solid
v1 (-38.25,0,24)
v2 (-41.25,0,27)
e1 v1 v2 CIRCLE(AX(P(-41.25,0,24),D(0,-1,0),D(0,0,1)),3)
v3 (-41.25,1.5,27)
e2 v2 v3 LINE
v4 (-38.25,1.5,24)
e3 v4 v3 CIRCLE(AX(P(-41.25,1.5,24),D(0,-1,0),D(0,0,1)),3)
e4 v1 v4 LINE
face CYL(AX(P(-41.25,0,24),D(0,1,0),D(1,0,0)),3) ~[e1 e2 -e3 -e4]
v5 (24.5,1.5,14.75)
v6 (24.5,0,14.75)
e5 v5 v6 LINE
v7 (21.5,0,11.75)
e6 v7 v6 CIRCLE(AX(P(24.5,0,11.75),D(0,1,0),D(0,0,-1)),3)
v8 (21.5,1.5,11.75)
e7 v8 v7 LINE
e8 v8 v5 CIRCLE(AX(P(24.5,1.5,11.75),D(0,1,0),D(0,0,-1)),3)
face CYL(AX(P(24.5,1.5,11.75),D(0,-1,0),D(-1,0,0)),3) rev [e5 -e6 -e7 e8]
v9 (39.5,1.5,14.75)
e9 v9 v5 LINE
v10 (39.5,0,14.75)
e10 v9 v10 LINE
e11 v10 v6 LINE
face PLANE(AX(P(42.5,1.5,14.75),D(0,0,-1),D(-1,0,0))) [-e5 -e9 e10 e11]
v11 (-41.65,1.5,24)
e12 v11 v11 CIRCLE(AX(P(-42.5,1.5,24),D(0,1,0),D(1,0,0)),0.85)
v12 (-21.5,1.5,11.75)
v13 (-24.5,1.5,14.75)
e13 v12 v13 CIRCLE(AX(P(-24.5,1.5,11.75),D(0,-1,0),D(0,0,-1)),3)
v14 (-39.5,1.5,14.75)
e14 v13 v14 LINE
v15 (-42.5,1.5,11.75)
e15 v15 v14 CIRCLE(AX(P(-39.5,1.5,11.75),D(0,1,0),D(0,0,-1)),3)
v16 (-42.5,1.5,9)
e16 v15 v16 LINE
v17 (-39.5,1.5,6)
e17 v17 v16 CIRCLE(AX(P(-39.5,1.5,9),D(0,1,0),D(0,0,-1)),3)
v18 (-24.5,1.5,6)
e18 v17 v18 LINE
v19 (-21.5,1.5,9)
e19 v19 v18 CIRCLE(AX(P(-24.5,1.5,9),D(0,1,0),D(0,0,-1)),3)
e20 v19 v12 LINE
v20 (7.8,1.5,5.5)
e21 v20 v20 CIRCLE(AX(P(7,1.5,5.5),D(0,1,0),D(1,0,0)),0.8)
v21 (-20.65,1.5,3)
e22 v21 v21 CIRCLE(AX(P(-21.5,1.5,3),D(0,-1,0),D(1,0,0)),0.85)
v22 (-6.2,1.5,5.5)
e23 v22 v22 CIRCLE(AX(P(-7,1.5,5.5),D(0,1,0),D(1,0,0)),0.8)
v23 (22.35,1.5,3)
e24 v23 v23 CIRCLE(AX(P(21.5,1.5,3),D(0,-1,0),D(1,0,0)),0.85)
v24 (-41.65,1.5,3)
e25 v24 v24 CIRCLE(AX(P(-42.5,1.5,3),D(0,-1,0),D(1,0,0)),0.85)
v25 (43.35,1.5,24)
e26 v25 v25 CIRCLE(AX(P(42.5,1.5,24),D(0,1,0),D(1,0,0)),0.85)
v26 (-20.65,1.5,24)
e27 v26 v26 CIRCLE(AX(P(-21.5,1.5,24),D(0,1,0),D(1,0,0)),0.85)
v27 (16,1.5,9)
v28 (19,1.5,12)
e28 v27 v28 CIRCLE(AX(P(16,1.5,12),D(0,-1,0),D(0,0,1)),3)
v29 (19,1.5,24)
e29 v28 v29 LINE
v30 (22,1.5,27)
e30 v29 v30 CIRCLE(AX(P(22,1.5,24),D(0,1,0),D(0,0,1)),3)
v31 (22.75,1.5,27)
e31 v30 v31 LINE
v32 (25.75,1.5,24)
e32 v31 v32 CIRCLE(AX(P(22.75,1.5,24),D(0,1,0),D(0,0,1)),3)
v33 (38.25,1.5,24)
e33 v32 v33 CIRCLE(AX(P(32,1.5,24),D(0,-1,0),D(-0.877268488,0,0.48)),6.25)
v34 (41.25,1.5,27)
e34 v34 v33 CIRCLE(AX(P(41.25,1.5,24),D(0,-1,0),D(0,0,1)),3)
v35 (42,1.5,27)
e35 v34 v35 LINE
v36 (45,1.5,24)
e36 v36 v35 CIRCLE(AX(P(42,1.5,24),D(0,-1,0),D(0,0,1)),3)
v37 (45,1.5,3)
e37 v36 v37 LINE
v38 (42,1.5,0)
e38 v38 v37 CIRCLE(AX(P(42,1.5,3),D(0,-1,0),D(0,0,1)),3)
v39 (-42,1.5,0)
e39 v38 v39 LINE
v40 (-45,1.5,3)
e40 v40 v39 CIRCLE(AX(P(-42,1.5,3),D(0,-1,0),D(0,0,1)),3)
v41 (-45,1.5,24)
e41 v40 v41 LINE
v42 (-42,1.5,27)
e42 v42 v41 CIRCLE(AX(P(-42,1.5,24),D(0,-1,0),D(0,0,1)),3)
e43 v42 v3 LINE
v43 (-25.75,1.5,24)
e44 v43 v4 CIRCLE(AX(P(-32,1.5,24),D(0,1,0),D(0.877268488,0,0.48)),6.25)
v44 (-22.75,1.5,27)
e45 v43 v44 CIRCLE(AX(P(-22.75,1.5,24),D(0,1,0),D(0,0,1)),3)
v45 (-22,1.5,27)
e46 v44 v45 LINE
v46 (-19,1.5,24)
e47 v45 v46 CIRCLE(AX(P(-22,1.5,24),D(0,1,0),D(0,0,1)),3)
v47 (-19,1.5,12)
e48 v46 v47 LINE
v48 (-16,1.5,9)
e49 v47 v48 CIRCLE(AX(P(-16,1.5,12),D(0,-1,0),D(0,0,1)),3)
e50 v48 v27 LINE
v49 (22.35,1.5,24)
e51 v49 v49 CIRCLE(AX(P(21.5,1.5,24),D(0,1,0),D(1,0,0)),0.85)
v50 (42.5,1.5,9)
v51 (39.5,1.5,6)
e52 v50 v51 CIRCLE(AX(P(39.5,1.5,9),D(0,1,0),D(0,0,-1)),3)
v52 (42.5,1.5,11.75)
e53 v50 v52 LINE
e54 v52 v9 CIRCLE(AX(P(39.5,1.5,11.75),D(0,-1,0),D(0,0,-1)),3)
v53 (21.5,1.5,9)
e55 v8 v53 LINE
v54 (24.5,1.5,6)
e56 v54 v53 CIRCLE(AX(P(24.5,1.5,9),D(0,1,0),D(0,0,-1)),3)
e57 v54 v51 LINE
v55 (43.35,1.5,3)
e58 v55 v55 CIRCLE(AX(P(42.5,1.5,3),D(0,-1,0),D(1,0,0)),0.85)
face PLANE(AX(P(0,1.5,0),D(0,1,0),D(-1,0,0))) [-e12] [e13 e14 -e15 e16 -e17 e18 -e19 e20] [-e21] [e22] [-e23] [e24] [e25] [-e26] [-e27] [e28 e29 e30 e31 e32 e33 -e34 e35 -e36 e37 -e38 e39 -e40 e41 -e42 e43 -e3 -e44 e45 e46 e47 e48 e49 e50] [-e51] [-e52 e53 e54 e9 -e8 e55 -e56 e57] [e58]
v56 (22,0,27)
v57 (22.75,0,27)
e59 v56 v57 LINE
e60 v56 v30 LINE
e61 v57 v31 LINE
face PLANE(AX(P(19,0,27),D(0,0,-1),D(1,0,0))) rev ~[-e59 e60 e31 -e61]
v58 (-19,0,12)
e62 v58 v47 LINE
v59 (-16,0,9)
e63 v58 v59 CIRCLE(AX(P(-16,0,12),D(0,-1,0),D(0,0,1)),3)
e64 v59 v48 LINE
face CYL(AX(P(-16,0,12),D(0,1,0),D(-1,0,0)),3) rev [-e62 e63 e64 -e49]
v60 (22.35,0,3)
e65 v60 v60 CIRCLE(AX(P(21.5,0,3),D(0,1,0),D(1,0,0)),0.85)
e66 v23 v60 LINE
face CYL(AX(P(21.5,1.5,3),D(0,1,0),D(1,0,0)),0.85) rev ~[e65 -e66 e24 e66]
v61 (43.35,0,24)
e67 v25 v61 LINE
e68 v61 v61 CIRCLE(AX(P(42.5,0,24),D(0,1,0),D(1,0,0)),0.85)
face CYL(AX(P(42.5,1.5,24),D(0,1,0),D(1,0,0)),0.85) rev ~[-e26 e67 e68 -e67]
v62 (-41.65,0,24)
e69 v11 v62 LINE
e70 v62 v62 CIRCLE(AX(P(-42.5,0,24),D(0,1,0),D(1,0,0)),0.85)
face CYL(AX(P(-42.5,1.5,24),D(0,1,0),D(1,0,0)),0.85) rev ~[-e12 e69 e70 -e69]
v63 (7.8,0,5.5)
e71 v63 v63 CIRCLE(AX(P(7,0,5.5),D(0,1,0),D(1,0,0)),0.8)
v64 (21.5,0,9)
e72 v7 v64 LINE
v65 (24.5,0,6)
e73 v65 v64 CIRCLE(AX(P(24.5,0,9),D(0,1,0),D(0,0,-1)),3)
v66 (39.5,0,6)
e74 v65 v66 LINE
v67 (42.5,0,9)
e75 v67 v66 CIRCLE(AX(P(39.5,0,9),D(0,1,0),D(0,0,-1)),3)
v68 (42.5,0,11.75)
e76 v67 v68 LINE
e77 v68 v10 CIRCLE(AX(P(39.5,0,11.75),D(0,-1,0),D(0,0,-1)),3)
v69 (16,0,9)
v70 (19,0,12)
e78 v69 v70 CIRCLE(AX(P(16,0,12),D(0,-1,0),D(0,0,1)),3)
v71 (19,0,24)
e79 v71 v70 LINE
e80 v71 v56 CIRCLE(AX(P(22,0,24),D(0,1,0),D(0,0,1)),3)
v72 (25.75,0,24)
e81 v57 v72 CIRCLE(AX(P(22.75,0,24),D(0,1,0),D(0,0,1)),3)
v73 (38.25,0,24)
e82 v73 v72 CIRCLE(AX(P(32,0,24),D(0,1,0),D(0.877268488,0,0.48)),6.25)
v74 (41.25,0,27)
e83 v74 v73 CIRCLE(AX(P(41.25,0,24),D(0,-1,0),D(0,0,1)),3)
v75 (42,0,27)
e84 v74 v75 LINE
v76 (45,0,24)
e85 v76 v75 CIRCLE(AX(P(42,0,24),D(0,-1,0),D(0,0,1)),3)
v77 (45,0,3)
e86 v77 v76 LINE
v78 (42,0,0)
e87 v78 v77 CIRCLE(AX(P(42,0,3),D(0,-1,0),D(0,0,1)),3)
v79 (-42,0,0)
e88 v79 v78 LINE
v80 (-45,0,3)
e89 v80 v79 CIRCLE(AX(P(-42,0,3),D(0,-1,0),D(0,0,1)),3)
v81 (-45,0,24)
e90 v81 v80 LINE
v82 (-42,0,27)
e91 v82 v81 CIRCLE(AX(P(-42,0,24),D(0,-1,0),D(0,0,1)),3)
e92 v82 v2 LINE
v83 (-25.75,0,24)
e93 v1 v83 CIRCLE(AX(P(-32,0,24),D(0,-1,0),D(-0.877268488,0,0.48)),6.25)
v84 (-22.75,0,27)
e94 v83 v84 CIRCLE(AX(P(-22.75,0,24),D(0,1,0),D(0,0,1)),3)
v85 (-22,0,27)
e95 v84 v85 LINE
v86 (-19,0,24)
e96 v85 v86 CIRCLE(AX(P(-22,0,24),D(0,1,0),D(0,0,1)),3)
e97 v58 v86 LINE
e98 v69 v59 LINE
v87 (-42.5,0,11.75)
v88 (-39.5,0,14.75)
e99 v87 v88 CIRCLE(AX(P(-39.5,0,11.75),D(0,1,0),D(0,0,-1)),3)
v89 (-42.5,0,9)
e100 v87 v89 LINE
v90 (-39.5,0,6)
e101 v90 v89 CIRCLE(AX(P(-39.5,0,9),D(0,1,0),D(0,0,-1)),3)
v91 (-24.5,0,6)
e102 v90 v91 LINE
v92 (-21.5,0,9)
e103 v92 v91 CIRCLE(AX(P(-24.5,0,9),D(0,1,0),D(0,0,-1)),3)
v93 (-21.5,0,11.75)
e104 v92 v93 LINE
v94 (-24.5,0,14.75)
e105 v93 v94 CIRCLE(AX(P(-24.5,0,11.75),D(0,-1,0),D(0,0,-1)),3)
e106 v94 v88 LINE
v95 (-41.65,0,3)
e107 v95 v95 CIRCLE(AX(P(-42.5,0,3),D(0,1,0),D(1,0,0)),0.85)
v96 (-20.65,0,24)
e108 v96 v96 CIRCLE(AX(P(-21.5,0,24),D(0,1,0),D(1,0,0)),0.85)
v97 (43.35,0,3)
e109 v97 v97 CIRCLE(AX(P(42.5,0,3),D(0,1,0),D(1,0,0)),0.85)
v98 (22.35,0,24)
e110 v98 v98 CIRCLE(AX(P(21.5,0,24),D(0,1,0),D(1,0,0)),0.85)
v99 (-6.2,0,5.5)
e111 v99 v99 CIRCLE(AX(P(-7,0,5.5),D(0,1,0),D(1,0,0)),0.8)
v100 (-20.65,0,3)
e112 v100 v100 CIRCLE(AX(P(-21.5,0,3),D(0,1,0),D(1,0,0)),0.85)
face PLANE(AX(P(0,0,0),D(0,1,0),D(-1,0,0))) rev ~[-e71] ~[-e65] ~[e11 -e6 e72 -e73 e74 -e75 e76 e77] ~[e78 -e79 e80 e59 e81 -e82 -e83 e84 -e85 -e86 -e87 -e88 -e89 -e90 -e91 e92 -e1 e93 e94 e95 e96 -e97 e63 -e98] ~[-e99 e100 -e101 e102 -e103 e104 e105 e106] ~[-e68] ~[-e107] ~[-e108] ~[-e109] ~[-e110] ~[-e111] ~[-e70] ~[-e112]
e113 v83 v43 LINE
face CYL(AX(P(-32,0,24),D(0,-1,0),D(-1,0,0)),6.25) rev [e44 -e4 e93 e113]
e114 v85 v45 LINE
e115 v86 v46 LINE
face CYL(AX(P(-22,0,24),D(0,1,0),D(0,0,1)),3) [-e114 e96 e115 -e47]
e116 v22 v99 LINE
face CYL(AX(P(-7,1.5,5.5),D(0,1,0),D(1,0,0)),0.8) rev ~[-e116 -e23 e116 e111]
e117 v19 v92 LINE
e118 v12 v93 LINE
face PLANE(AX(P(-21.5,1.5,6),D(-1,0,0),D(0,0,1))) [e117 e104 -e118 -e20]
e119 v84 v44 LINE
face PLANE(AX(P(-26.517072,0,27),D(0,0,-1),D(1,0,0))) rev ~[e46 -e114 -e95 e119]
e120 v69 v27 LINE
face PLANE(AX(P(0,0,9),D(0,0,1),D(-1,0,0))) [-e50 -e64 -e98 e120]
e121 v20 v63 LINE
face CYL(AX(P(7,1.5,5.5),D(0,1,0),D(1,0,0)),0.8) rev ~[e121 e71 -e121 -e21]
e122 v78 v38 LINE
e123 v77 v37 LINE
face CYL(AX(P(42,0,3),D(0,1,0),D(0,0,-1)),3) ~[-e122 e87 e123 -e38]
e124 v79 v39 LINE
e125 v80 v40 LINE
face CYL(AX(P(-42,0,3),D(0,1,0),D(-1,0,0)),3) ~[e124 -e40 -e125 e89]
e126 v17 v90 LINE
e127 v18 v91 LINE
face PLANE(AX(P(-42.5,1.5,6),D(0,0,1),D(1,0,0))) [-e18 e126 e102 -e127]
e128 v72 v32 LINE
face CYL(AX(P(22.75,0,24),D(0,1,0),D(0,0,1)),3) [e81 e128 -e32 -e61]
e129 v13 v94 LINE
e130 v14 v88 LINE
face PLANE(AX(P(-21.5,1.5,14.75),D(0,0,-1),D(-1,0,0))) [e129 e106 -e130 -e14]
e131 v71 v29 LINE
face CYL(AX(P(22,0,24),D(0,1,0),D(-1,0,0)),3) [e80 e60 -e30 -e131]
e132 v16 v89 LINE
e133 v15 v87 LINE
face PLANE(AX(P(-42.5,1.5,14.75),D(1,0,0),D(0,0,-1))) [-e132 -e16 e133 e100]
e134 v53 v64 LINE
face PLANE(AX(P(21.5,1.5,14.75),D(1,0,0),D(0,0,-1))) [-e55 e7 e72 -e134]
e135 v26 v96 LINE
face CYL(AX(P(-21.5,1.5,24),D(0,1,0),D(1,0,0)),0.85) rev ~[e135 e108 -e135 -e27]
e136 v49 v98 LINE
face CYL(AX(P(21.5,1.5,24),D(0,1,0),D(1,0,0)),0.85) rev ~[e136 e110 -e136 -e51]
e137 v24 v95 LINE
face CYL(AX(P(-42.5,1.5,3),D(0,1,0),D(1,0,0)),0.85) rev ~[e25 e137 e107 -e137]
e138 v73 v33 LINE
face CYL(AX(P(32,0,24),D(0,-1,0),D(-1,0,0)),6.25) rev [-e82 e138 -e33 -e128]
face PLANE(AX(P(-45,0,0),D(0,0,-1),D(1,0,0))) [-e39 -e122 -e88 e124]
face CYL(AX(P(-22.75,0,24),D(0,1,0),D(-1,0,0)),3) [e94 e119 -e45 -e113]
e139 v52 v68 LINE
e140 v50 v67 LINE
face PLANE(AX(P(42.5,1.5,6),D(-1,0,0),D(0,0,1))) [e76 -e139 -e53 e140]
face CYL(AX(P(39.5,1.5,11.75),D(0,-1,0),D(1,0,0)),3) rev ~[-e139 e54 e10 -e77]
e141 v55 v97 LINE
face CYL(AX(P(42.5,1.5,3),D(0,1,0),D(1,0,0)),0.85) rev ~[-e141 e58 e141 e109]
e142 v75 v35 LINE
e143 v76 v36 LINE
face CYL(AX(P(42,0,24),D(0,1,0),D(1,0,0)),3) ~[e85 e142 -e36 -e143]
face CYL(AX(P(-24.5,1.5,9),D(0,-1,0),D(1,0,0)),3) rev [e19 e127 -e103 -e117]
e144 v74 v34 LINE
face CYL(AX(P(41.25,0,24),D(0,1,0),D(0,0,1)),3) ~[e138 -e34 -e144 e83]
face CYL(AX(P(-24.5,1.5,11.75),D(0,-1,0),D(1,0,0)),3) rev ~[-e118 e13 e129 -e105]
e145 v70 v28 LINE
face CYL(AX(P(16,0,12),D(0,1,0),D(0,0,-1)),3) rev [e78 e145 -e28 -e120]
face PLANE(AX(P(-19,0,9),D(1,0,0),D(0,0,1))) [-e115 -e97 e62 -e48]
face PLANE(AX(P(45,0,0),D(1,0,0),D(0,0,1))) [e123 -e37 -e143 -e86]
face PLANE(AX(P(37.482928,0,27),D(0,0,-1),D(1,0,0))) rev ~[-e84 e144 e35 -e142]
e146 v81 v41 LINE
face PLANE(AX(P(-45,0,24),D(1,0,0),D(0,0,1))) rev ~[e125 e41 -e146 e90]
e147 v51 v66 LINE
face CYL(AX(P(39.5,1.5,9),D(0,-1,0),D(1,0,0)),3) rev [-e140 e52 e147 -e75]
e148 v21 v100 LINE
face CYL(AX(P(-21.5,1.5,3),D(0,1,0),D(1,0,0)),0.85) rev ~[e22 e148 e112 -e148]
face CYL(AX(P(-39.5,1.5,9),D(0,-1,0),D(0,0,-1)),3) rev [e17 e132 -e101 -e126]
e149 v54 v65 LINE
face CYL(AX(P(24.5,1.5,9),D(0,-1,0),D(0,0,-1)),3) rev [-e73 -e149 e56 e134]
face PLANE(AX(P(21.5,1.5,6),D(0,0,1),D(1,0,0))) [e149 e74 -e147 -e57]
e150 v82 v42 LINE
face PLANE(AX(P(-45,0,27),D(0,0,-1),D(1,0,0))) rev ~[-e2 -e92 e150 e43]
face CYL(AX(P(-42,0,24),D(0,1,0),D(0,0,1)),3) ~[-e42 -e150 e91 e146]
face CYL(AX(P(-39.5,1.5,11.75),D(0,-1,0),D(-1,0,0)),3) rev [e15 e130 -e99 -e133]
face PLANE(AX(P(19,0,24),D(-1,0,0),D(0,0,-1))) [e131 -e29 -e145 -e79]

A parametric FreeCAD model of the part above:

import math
import FreeCAD as App
import Part
import Sketcher


def edges_at(feature, points):
    """Names of the edges that pass closest to the given points."""
    edges = feature.Shape.Edges
    near = lambda p: min(range(len(edges)), key=lambda i: edges[i].distToShape(Part.Vertex(*p))[0])
    return sorted({f"Edge{near(p) + 1}" for p in points})

doc = App.newDocument("Part")
params = doc.addObject("Spreadsheet::Sheet", "Params")
for row, (alias, value) in enumerate([
    ("sketch1_radius", "6.25 mm"),
    ("sketch1_height", "3 mm"),
    ("pad1_length", "1.5 mm"),
    ("sketch2_diameter", "1.7 mm"),
    ("sketch2_diameter2", "1.6 mm"),
    ("sketch2_width", "21 mm"),
    ("sketch2_height", "8.75 mm"),
    ("pocket1_length", "1.5 mm"),
    ("fillet_radius", "3 mm"),
], start=1):
    params.set(f"A{row}", alias)
    params.set(f"B{row}", "=" + value)
    params.setAlias(f"B{row}", alias)

body = doc.addObject("PartDesign::Body", "Body")

# Sketch on XZ plane
sketch1 = body.newObject("Sketcher::SketchObject", "Sketch")
sketch1.AttachmentSupport = (doc.getObject("XZ_Plane"), [""])
sketch1.MapMode = "FlatFace"
sketch1.addGeometry([
    Part.ArcOfCircle(Part.Circle(App.Vector(-32, 24, 0), App.Vector(0, 0, 1), 6), math.radians(151), math.radians(389)),  # 0
    Part.LineSegment(App.Vector(-27, 27, 0), App.Vector(-19, 27, 0)),  # 1
    Part.LineSegment(App.Vector(-19, 27, 0), App.Vector(-19, 9, 0)),  # 2
    Part.LineSegment(App.Vector(-19, 9, 0), App.Vector(19, 9, 0)),  # 3
    Part.LineSegment(App.Vector(19, 9, 0), App.Vector(19, 27, 0)),  # 4
    Part.LineSegment(App.Vector(19, 27, 0), App.Vector(27, 27, 0)),  # 5
    Part.ArcOfCircle(Part.Circle(App.Vector(32, 24, 0), App.Vector(0, 0, 1), 6), math.radians(151), math.radians(389)),  # 6
    Part.LineSegment(App.Vector(37, 27, 0), App.Vector(45, 27, 0)),  # 7
    Part.LineSegment(App.Vector(45, 27, 0), App.Vector(45, 0, 0)),  # 8
    Part.LineSegment(App.Vector(45, 0, 0), App.Vector(-45, 0, 0)),  # 9
    Part.LineSegment(App.Vector(-45, 0, 0), App.Vector(-45, 27, 0)),  # 10
    Part.LineSegment(App.Vector(-45, 27, 0), App.Vector(-37, 27, 0)),  # 11
], False)
sketch1.addConstraint([
    Sketcher.Constraint("Coincident", 0, 2, 1, 1),
    Sketcher.Constraint("Coincident", 1, 2, 2, 1),
    Sketcher.Constraint("Coincident", 2, 2, 3, 1),
    Sketcher.Constraint("Coincident", 3, 2, 4, 1),
    Sketcher.Constraint("Coincident", 4, 2, 5, 1),
    Sketcher.Constraint("Coincident", 5, 2, 6, 1),
    Sketcher.Constraint("Coincident", 6, 2, 7, 1),
    Sketcher.Constraint("Coincident", 7, 2, 8, 1),
    Sketcher.Constraint("Coincident", 8, 2, 9, 1),
    Sketcher.Constraint("Coincident", 9, 2, 10, 1),
    Sketcher.Constraint("Coincident", 10, 2, 11, 1),
    Sketcher.Constraint("Coincident", 11, 2, 0, 1),
    Sketcher.Constraint("Horizontal", 1),
    Sketcher.Constraint("Vertical", 2),
    Sketcher.Constraint("Horizontal", 3),
    Sketcher.Constraint("Vertical", 4),
    Sketcher.Constraint("Horizontal", 5),
    Sketcher.Constraint("Horizontal", 7),
    Sketcher.Constraint("Vertical", 8),
    Sketcher.Constraint("Horizontal", 9),
    Sketcher.Constraint("Vertical", 10),
    Sketcher.Constraint("Horizontal", 11),
    Sketcher.Constraint("Equal", 0, 6),
    Sketcher.Constraint("Symmetric", 8, 2, 9, 2, -1, 1),
    Sketcher.Constraint("Symmetric", 0, 3, 6, 3, -2),
    Sketcher.Constraint("Symmetric", 1, 2, 4, 2, -2),
    Sketcher.Constraint("Horizontal", 5, 2, 6, 2),
    Sketcher.Constraint("Horizontal", 7, 2, 10, 2),
    Sketcher.Constraint("Equal", 5, 7),
    Sketcher.Constraint("Radius", 0, 6.25),
    Sketcher.Constraint("DistanceY", -1, 1, 0, 3, 24.0),
    Sketcher.Constraint("DistanceY", -1, 1, 2, 2, 9.0),
    Sketcher.Constraint("DistanceX", 0, 3, 6, 3, 64.0),
    Sketcher.Constraint("DistanceY", 0, 3, 0, 2, 3.0),
    Sketcher.Constraint("DistanceX", 4, 2, 7, 2, 26.0),
])
sketch1.setExpression("Constraints[29]", "Params.sketch1_radius")
sketch1.setExpression("Constraints[33]", "Params.sketch1_height")
pad1 = body.newObject("PartDesign::Pad", "Pad")
pad1.Profile = sketch1
pad1.setExpression("Length", "Params.pad1_length")
pad1.Reversed = True

# Sketch on XZ plane
sketch2 = body.newObject("Sketcher::SketchObject", "Sketch001")
sketch2.AttachmentSupport = (doc.getObject("XZ_Plane"), [""])
sketch2.MapMode = "FlatFace"
sketch2.AttachmentOffset = App.Placement(App.Vector(0, 0, -1.5), App.Rotation())
sketch2.addGeometry([
    Part.LineSegment(App.Vector(21.5, 14.8, 0), App.Vector(42.5, 14.8, 0)),  # 0
    Part.LineSegment(App.Vector(42.5, 14.8, 0), App.Vector(42.5, 6, 0)),  # 1
    Part.LineSegment(App.Vector(42.5, 6, 0), App.Vector(21.5, 6, 0)),  # 2
    Part.LineSegment(App.Vector(21.5, 6, 0), App.Vector(21.5, 14.8, 0)),  # 3
    Part.LineSegment(App.Vector(-42.5, 14.8, 0), App.Vector(-21.5, 14.8, 0)),  # 4
    Part.LineSegment(App.Vector(-21.5, 14.8, 0), App.Vector(-21.5, 6, 0)),  # 5
    Part.LineSegment(App.Vector(-21.5, 6, 0), App.Vector(-42.5, 6, 0)),  # 6
    Part.LineSegment(App.Vector(-42.5, 6, 0), App.Vector(-42.5, 14.8, 0)),  # 7
    Part.Circle(App.Vector(42.5, 3, 0), App.Vector(0, 0, 1), 0.8),  # 8
    Part.Circle(App.Vector(21.5, 3, 0), App.Vector(0, 0, 1), 0.8),  # 9
    Part.Circle(App.Vector(-21.5, 3, 0), App.Vector(0, 0, 1), 0.8),  # 10
    Part.Circle(App.Vector(-42.5, 3, 0), App.Vector(0, 0, 1), 0.8),  # 11
    Part.Circle(App.Vector(-42.5, 24, 0), App.Vector(0, 0, 1), 0.8),  # 12
    Part.Circle(App.Vector(-21.5, 24, 0), App.Vector(0, 0, 1), 0.8),  # 13
    Part.Circle(App.Vector(21.5, 24, 0), App.Vector(0, 0, 1), 0.8),  # 14
    Part.Circle(App.Vector(42.5, 24, 0), App.Vector(0, 0, 1), 0.8),  # 15
    Part.Circle(App.Vector(7, 5.5, 0), App.Vector(0, 0, 1), 0.8),  # 16
    Part.Circle(App.Vector(-7, 5.5, 0), App.Vector(0, 0, 1), 0.8),  # 17
], False)
sketch2.addConstraint([
    Sketcher.Constraint("Coincident", 0, 2, 1, 1),
    Sketcher.Constraint("Coincident", 1, 2, 2, 1),
    Sketcher.Constraint("Coincident", 2, 2, 3, 1),
    Sketcher.Constraint("Coincident", 3, 2, 0, 1),
    Sketcher.Constraint("Coincident", 4, 2, 5, 1),
    Sketcher.Constraint("Coincident", 5, 2, 6, 1),
    Sketcher.Constraint("Coincident", 6, 2, 7, 1),
    Sketcher.Constraint("Coincident", 7, 2, 4, 1),
    Sketcher.Constraint("Horizontal", 0),
    Sketcher.Constraint("Vertical", 1),
    Sketcher.Constraint("Horizontal", 2),
    Sketcher.Constraint("Vertical", 3),
    Sketcher.Constraint("Horizontal", 4),
    Sketcher.Constraint("Vertical", 5),
    Sketcher.Constraint("Horizontal", 6),
    Sketcher.Constraint("Vertical", 7),
    Sketcher.Constraint("Equal", 8, 9),
    Sketcher.Constraint("Equal", 9, 10),
    Sketcher.Constraint("Equal", 10, 11),
    Sketcher.Constraint("Equal", 11, 12),
    Sketcher.Constraint("Equal", 12, 13),
    Sketcher.Constraint("Equal", 13, 14),
    Sketcher.Constraint("Equal", 14, 15),
    Sketcher.Constraint("Equal", 16, 17),
    Sketcher.Constraint("Symmetric", 9, 3, 10, 3, -2),
    Sketcher.Constraint("Symmetric", 8, 3, 11, 3, -2),
    Sketcher.Constraint("Symmetric", 13, 3, 14, 3, -2),
    Sketcher.Constraint("Symmetric", 12, 3, 15, 3, -2),
    Sketcher.Constraint("Symmetric", 16, 3, 17, 3, -2),
    Sketcher.Constraint("Symmetric", 3, 2, 4, 2, -2),
    Sketcher.Constraint("Symmetric", 1, 2, 6, 2, -2),
    Sketcher.Constraint("Horizontal", 8, 3, 9, 3),
    Sketcher.Constraint("Horizontal", 12, 3, 13, 3),
    Sketcher.Constraint("Vertical", 11, 3, 12, 3),
    Sketcher.Constraint("Vertical", 10, 3, 13, 3),
    Sketcher.Constraint("Vertical", 15, 3, 0, 2),
    Sketcher.Constraint("Vertical", 14, 3, 2, 2),
    Sketcher.Constraint("DistanceY", -1, 1, 8, 3, 3.0),
    Sketcher.Constraint("DistanceY", 8, 3, 1, 2, 3.0),
    Sketcher.Constraint("Diameter", 8, 1.7),
    Sketcher.Constraint("Diameter", 16, 1.6),
    Sketcher.Constraint("DistanceX", 0, 1, 0, 2, 21.0),
    Sketcher.Constraint("DistanceY", -1, 1, 12, 3, 24.0),
    Sketcher.Constraint("DistanceX", -1, 1, 16, 3, 7.0),
    Sketcher.Constraint("DistanceX", 10, 3, 9, 3, 43.0),
    Sketcher.Constraint("DistanceY", 1, 2, 1, 1, 8.75),
    Sketcher.Constraint("DistanceY", -1, 1, 16, 3, 5.5),
])
sketch2.setExpression("Constraints[39]", "Params.sketch2_diameter")
sketch2.setExpression("Constraints[40]", "Params.sketch2_diameter2")
sketch2.setExpression("Constraints[41]", "Params.sketch2_width")
sketch2.setExpression("Constraints[45]", "Params.sketch2_height")
pocket1 = body.newObject("PartDesign::Pocket", "Pocket")
pocket1.Profile = sketch2
pocket1.setExpression("Length", "Params.pocket1_length")
pocket1.Reversed = True
doc.recompute()

fillet = body.newObject("PartDesign::Fillet", "Fillet")
fillet.Base = (pocket1, edges_at(pocket1, [
    (-21.5, 0.75, 6),
    (-21.5, 0.75, 14.75),
    (-42.5, 0.75, 14.75),
    (-42.5, 0.75, 6),
    (-37.483, 0.75, 27),
    (-45, 0.75, 27),
    (-26.517, 0.75, 27),
    (-19, 0.75, 27),
    (19, 0.75, 27),
    (26.517, 0.75, 27),
    (37.483, 0.75, 27),
    (45, 0.75, 27),
    (45, 0.75, 0),
    (-45, 0.75, 0),
    (-19, 0.75, 9),
    (19, 0.75, 9),
    (42.5, 0.75, 14.75),
    (21.5, 0.75, 14.75),
    (21.5, 0.75, 6),
    (42.5, 0.75, 6),
]))
fillet.setExpression("Radius", "Params.fillet_radius")

doc.recompute()
